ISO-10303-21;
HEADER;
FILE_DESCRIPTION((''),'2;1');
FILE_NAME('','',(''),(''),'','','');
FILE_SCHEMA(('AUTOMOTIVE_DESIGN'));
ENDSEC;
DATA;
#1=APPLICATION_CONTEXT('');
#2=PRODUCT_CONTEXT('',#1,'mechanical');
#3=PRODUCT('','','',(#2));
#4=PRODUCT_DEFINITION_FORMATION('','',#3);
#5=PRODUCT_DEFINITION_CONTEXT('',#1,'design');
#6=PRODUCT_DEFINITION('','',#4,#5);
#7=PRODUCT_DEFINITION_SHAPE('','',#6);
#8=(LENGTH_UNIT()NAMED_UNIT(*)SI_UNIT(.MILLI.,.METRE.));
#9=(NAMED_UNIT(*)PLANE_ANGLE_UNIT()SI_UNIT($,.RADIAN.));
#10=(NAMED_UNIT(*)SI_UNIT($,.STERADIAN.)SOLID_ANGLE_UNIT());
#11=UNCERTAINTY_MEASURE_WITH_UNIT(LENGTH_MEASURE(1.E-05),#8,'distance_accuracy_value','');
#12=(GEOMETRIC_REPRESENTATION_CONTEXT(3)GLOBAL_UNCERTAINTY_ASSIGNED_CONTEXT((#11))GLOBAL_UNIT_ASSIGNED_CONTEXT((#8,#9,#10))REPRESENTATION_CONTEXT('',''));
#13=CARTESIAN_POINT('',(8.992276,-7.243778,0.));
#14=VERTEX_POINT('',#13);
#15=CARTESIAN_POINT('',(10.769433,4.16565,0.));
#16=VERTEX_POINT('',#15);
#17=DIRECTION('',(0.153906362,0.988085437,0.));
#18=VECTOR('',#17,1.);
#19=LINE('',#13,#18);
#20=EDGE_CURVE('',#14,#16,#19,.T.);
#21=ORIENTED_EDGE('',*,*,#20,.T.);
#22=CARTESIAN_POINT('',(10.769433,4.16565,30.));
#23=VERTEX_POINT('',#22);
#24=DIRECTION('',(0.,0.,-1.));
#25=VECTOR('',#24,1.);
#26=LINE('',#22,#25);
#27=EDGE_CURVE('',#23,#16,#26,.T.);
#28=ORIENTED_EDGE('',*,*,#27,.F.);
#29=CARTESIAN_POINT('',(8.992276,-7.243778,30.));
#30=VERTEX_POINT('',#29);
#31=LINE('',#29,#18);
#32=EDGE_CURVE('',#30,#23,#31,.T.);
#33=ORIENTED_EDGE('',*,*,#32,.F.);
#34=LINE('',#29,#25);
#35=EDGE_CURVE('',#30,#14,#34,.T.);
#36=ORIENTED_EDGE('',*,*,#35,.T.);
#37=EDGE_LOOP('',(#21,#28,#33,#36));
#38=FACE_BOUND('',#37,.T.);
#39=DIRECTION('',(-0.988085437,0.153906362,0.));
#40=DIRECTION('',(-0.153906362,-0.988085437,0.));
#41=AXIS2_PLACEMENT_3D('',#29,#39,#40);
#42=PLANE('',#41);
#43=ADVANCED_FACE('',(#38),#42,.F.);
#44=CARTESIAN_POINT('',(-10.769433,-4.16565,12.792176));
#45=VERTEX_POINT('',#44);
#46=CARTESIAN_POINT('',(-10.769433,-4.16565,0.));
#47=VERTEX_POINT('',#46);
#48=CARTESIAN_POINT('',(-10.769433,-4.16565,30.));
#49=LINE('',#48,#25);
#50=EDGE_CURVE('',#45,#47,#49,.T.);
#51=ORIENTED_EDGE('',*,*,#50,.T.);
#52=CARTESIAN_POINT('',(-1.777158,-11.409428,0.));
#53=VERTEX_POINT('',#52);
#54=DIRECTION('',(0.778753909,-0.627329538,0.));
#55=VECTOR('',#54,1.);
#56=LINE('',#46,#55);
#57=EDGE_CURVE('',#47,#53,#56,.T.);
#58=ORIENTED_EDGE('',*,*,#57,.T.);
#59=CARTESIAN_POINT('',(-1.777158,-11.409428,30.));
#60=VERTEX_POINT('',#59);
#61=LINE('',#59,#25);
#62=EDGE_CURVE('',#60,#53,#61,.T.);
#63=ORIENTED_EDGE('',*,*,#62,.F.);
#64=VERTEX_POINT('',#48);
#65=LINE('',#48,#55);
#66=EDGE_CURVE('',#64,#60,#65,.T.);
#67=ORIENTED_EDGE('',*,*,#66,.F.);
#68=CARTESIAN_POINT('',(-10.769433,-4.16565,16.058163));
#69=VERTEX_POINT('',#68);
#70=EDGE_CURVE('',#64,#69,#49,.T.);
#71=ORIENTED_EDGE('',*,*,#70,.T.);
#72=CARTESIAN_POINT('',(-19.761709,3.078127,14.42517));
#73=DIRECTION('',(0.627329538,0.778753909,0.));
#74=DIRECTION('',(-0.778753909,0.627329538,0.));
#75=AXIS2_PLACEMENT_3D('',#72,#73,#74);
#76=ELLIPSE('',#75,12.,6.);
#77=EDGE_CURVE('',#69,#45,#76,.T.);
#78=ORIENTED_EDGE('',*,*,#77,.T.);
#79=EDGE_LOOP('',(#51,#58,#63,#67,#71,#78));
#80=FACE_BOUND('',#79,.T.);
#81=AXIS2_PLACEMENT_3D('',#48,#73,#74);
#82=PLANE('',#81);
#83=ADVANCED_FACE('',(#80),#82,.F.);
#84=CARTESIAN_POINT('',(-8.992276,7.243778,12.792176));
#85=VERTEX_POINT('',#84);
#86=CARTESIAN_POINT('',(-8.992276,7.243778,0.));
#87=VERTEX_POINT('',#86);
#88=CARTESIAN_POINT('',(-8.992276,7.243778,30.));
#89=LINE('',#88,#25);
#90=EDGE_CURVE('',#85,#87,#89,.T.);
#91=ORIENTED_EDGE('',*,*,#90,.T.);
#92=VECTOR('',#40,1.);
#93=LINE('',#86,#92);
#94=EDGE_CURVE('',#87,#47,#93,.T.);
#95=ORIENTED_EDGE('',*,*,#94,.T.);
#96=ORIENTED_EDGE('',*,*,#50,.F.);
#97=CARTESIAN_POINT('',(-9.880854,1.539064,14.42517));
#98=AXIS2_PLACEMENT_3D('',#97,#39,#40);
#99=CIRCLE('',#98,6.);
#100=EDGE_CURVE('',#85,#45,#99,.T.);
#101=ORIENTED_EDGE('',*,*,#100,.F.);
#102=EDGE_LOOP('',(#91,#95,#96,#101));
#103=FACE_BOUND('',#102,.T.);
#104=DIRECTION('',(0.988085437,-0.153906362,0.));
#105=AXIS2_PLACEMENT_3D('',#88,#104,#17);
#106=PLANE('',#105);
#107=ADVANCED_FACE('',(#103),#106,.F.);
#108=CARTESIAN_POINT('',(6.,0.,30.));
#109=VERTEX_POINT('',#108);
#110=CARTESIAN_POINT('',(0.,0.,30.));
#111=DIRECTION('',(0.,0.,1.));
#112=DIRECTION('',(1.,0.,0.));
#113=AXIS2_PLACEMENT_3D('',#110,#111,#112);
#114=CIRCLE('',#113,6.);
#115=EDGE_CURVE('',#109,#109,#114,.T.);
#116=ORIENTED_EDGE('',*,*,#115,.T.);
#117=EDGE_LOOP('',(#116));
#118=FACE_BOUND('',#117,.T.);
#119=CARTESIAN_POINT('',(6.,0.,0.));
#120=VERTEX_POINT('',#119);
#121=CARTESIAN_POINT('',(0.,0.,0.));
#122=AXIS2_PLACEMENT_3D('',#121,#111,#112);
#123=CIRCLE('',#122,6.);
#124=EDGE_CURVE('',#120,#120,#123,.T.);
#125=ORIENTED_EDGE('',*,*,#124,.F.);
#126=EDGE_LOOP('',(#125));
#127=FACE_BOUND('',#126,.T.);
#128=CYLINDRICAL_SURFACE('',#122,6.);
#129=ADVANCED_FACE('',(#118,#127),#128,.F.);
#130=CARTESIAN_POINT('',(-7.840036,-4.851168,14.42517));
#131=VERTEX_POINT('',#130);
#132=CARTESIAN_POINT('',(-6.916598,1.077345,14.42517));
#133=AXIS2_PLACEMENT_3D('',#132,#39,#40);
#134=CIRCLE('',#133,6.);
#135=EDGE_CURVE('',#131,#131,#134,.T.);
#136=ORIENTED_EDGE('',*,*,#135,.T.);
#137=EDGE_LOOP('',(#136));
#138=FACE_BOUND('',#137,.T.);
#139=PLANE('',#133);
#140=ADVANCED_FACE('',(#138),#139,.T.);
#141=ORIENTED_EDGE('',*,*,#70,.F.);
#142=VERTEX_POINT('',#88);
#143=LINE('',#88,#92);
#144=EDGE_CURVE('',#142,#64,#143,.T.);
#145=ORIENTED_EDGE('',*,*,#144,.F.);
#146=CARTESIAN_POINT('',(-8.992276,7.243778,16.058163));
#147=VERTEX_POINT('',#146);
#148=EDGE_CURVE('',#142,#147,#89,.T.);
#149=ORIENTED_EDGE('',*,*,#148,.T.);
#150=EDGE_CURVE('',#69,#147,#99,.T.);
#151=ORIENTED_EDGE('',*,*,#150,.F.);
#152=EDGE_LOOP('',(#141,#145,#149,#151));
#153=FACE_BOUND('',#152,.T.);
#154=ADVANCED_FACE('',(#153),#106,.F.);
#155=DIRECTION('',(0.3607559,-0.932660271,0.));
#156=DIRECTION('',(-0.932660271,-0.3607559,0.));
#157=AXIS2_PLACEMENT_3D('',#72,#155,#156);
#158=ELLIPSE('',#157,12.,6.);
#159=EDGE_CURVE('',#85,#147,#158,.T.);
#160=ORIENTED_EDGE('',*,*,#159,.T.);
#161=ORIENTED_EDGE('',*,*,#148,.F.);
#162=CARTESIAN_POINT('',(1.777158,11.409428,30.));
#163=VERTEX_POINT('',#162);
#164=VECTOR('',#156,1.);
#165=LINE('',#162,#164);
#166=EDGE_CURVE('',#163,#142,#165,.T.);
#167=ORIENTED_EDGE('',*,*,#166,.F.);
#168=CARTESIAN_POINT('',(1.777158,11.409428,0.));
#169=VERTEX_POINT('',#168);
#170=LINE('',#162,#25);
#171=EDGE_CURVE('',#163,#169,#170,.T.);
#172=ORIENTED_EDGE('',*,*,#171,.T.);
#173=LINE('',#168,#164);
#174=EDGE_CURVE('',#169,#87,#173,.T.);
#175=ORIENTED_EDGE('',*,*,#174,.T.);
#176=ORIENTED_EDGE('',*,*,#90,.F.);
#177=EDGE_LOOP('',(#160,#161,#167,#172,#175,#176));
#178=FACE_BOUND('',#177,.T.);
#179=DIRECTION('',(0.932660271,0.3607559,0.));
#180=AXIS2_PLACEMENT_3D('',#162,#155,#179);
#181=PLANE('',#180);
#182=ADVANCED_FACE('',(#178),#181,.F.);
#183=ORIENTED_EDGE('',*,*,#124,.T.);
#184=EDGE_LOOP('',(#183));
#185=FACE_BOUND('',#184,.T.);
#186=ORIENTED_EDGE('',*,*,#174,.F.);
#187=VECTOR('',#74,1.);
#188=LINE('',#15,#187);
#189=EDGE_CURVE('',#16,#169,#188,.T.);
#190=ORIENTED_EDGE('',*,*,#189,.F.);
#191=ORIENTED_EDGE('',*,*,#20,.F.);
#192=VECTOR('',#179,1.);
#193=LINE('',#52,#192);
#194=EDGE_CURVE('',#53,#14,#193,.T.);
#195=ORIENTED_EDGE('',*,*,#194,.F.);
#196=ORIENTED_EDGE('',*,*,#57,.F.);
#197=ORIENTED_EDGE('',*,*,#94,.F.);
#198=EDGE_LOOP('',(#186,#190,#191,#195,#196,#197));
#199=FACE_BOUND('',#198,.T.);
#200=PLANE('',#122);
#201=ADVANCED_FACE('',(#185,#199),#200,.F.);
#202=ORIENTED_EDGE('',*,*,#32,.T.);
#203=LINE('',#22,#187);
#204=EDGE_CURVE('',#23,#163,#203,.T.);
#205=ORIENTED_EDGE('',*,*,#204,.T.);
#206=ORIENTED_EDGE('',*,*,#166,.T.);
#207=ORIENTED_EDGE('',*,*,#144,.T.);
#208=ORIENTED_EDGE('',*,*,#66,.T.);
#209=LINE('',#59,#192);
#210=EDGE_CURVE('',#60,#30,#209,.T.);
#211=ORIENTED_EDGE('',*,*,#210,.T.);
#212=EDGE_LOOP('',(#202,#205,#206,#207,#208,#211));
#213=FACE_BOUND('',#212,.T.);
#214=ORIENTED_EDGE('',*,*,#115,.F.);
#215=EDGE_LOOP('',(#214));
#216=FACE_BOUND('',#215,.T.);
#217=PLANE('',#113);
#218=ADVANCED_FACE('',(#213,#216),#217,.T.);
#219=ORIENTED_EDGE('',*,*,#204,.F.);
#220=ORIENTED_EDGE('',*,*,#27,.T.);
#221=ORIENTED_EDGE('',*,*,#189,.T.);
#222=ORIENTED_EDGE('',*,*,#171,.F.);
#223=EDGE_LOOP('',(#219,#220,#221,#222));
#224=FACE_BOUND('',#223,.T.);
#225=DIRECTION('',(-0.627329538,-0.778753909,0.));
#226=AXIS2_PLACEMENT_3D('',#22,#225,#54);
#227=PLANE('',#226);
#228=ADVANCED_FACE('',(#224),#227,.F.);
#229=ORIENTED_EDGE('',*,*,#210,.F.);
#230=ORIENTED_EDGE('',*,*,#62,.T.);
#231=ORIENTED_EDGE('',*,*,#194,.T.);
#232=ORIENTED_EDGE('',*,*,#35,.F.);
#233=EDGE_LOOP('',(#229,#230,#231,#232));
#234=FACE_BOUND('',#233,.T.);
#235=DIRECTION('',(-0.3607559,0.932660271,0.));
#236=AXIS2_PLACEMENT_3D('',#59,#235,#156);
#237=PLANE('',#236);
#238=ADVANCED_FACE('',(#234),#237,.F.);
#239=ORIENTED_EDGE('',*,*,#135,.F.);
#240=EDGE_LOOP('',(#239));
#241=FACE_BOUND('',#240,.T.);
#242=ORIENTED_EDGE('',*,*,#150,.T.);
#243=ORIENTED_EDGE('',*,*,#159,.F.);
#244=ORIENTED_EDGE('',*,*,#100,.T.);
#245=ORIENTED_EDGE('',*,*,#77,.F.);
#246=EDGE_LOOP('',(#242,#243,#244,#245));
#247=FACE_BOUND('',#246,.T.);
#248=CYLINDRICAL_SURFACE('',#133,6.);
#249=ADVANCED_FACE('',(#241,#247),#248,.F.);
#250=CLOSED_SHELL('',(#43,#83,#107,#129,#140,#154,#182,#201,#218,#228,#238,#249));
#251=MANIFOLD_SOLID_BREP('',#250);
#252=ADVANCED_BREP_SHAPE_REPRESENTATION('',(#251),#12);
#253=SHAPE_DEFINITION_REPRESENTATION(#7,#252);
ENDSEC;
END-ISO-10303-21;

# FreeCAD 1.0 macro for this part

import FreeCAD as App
import Part
import Sketcher
Q = App.Units.Quantity

doc = App.newDocument("Part")
params = doc.addObject("Spreadsheet::Sheet", "Params")
for row, (alias, value) in enumerate([
    ("pad1_length", "30 mm"),
    ("sketch2_diameter", "12 mm"),
    ("sketch3_diameter", "12 mm"),
    ("pocket2_length", "3 mm"),
], start=1):
    params.set(f"A{row}", alias)
    params.set(f"B{row}", "=" + value)
    params.setAlias(f"B{row}", alias)

body = doc.addObject("PartDesign::Body", "Body")

sketch1 = body.newObject("Sketcher::SketchObject", "Sketch")
sketch1.AttachmentSupport = (doc.getObject("XY_Plane"), [""])
sketch1.MapMode = "FlatFace"
sketch1.addGeometry(Part.LineSegment(App.Vector(9, -7, 0), App.Vector(11, 4, 0)), False)
sketch1.addGeometry(Part.LineSegment(App.Vector(11, 4, 0), App.Vector(2, 11, 0)), False)
sketch1.addGeometry(Part.LineSegment(App.Vector(2, 11, 0), App.Vector(-9, 7, 0)), False)
sketch1.addGeometry(Part.LineSegment(App.Vector(-9, 7, 0), App.Vector(-11, -4, 0)), False)
sketch1.addGeometry(Part.LineSegment(App.Vector(-11, -4, 0), App.Vector(-2, -11, 0)), False)
sketch1.addGeometry(Part.LineSegment(App.Vector(-2, -11, 0), App.Vector(9, -7, 0)), False)
sketch1.addConstraint(Sketcher.Constraint("Coincident", 0, 2, 1, 1))
sketch1.addConstraint(Sketcher.Constraint("Coincident", 1, 2, 2, 1))
sketch1.addConstraint(Sketcher.Constraint("Coincident", 2, 2, 3, 1))
sketch1.addConstraint(Sketcher.Constraint("Coincident", 3, 2, 4, 1))
sketch1.addConstraint(Sketcher.Constraint("Coincident", 4, 2, 5, 1))
sketch1.addConstraint(Sketcher.Constraint("Coincident", 5, 2, 0, 1))
sketch1.addConstraint(Sketcher.Constraint("Symmetric", 0, 2, 3, 2, -1, 1))
sketch1.addConstraint(Sketcher.Constraint("Symmetric", 1, 2, 4, 2, -1, 1))
sketch1.addConstraint(Sketcher.Constraint("Symmetric", 2, 2, 5, 2, -1, 1))
sketch1.addConstraint(Sketcher.Constraint("Equal", 0, 1))
sketch1.addConstraint(Sketcher.Constraint("Equal", 1, 2))
sketch1.addConstraint(Sketcher.Constraint("DistanceY", 3, 2, 0, 2, Q("8.331301 mm")))
sketch1.addConstraint(Sketcher.Constraint("DistanceY", 2, 2, 1, 2, Q("4.16565 mm")))
sketch1.addConstraint(Sketcher.Constraint("DistanceX", 2, 2, 0, 2, Q("19.761709 mm")))
sketch1.addConstraint(Sketcher.Constraint("DistanceX", 3, 2, 1, 2, Q("12.546591 mm")))
pad1 = body.newObject("PartDesign::Pad", "Pad")
pad1.Profile = sketch1
pad1.setExpression("Length", "Params.pad1_length")

sketch2 = body.newObject("Sketcher::SketchObject", "Sketch001")
sketch2.AttachmentSupport = (doc.getObject("XY_Plane"), [""])
sketch2.MapMode = "FlatFace"
sketch2.AttachmentOffset = App.Placement(App.Vector(0, 0, 30), App.Rotation())
sketch2.addGeometry(Part.Circle(App.Vector(0, 0, 0), App.Vector(0, 0, 1), 6), False)
sketch2.addConstraint(Sketcher.Constraint("Coincident", 0, 3, -1, 1))
sketch2.addConstraint(Sketcher.Constraint("Diameter", 0, Q("12 mm")))
sketch2.setExpression("Constraints[1]", "Params.sketch2_diameter")
pocket1 = body.newObject("PartDesign::Pocket", "Pocket")
pocket1.Profile = sketch2
pocket1.Type = "ThroughAll"

sketch3 = body.newObject("Sketcher::SketchObject", "Sketch002")
sketch3.Placement = App.Placement(App.Vector(-9.880854, 1.539064, 0), App.Rotation(App.Vector(0, 0, 1), App.Vector(0.153906362, 0.988085437, 0), App.Vector(-0.988085437, 0.153906362, 0), "ZXY"))
sketch3.addGeometry(Part.Circle(App.Vector(14, 0, 0), App.Vector(0, 0, 1), 6), False)
sketch3.addConstraint(Sketcher.Constraint("PointOnObject", 0, 3, -1))
sketch3.addConstraint(Sketcher.Constraint("Diameter", 0, Q("12 mm")))
sketch3.addConstraint(Sketcher.Constraint("DistanceX", -1, 1, 0, 3, Q("14.42517 mm")))
sketch3.setExpression("Constraints[1]", "Params.sketch3_diameter")
pocket2 = body.newObject("PartDesign::Pocket", "Pocket001")
pocket2.Profile = sketch3
pocket2.setExpression("Length", "Params.pocket2_length")

doc.recompute()
